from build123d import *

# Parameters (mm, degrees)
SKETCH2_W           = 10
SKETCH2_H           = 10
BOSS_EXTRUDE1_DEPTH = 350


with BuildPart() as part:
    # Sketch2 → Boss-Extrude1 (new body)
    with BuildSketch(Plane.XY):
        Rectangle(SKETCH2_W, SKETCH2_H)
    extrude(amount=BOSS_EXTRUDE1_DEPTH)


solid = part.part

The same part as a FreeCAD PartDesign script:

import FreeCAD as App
import Part
import Sketcher


def add_polygon(sketch, points):
    """Adds a closed chain of lines whose ends are joined by coincident constraints."""
    first, n = sketch.GeometryCount, len(points)
    for a, b in zip(points, points[1:] + points[:1]):
        sketch.addGeometry(Part.LineSegment(App.Vector(*a, 0), App.Vector(*b, 0)), False)
    for i in range(n):
        sketch.addConstraint(Sketcher.Constraint("Coincident", first + i, 2, first + (i + 1) % n, 1))

doc = App.newDocument("Part")
body = doc.addObject("PartDesign::Body", "Body")

# Sketch on XY plane
sketch1 = body.newObject("Sketcher::SketchObject", "Sketch")
sketch1.AttachmentSupport = (doc.getObject("XY_Plane"), [""])
sketch1.MapMode = "FlatFace"
add_polygon(sketch1, [(-5, 5), (-5, -5), (5, -5), (5, 5)])  # lines 0-3
sketch1.addConstraint([
    Sketcher.Constraint("Vertical", 0),
    Sketcher.Constraint("Horizontal", 1),
    Sketcher.Constraint("Vertical", 2),
    Sketcher.Constraint("Horizontal", 3),
    Sketcher.Constraint("Symmetric", 0, 2, 2, 2, -1, 1),
    Sketcher.Constraint("Equal", 3, 0),
    Sketcher.Constraint("DistanceX", 1, 1, 1, 2, 10.0),
])
pad1 = body.newObject("PartDesign::Pad", "Pad")
pad1.Profile = sketch1
pad1.Length = 350

doc.recompute()
